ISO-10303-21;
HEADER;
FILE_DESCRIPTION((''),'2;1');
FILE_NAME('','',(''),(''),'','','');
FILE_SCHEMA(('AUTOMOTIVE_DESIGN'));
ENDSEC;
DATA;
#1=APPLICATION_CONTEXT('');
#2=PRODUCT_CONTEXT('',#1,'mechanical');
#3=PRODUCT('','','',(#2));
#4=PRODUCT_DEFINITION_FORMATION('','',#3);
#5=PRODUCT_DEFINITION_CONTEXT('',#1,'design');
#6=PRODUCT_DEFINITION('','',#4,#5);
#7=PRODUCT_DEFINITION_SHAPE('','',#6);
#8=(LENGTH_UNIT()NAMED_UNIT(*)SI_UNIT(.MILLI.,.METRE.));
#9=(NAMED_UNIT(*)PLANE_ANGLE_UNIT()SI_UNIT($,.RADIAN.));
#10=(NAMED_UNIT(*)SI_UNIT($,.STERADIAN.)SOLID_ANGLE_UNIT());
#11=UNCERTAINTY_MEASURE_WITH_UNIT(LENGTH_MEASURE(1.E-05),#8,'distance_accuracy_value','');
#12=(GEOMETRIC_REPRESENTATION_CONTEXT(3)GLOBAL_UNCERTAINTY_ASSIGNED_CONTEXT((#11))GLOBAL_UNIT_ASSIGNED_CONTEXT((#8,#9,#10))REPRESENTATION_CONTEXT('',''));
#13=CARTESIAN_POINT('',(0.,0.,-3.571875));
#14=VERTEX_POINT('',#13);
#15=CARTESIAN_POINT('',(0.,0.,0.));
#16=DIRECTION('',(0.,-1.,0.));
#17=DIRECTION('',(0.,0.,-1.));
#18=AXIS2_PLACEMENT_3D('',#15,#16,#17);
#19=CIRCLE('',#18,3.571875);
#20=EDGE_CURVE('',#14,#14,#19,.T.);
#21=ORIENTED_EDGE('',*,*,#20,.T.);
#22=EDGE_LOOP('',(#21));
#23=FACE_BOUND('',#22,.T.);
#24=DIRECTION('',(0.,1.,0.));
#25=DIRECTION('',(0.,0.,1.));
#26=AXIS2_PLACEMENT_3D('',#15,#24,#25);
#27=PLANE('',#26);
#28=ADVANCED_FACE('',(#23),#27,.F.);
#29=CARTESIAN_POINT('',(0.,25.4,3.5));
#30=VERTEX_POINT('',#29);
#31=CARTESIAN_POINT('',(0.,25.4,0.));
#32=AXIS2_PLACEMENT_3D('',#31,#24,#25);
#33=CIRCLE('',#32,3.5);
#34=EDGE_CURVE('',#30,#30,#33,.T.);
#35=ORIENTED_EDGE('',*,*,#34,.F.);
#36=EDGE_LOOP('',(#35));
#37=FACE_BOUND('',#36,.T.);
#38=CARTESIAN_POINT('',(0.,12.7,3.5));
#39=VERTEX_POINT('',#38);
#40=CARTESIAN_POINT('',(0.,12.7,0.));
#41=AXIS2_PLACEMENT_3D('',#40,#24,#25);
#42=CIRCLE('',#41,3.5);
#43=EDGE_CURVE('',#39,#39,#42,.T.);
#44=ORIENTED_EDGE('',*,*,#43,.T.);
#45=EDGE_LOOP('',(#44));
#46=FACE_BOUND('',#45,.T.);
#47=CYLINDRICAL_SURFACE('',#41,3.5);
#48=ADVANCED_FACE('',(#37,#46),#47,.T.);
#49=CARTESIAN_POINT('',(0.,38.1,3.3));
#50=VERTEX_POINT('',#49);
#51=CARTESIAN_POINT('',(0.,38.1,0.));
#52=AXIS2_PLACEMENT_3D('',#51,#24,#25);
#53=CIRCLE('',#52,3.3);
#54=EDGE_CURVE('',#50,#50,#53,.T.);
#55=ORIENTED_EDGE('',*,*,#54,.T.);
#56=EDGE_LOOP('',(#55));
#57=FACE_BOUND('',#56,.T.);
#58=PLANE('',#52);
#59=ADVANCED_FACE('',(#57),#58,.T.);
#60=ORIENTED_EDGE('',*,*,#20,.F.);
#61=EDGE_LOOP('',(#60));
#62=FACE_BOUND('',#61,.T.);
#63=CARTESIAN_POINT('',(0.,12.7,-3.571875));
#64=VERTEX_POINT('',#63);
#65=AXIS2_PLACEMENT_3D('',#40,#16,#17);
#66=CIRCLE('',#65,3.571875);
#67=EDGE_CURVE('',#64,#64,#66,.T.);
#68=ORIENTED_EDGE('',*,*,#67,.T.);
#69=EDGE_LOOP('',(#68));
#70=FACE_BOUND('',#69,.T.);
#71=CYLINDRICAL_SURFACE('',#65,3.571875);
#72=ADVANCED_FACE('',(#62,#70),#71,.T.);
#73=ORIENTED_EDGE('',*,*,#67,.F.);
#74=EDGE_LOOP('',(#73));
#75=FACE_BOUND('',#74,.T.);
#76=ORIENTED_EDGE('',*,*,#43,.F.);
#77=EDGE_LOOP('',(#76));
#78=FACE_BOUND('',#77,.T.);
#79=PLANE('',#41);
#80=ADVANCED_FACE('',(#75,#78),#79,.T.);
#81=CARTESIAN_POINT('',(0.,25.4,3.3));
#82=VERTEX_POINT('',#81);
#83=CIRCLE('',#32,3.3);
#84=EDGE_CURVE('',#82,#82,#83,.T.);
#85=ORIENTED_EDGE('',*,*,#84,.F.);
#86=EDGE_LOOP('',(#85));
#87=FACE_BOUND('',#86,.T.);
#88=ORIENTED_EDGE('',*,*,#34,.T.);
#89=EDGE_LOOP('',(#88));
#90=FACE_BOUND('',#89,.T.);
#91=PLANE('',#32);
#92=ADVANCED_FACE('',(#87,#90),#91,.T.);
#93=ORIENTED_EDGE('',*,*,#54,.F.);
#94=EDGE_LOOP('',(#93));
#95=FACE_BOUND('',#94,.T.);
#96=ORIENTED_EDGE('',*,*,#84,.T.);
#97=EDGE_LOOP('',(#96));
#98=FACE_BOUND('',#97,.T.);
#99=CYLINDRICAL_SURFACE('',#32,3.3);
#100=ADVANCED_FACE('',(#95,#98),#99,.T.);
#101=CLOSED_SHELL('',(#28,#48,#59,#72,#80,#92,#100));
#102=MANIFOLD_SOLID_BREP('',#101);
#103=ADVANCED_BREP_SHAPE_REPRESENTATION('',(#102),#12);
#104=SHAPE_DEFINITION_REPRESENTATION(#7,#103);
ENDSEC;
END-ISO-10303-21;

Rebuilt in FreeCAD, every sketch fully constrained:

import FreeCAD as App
import Part
import Sketcher
Q = App.Units.Quantity

doc = App.newDocument("Part")
body = doc.addObject("PartDesign::Body", "Body")

# Sketch on XZ plane
sketch1 = body.newObject("Sketcher::SketchObject", "Sketch")
sketch1.AttachmentSupport = (doc.getObject("XZ_Plane"), [""])
sketch1.MapMode = "FlatFace"
sketch1.addGeometry(Part.Circle(App.Vector(0, 0, 0), App.Vector(0, 0, 1), 4.8), False)
sketch1.addConstraint(Sketcher.Constraint("Coincident", 0, 3, -1, 1))
sketch1.addConstraint(Sketcher.Constraint("Diameter", 0, Q("0.375 in")))
pad1 = body.newObject("PartDesign::Pad", "Pad")
pad1.Profile = sketch1
pad1.Length = Q("1.5 in")
pad1.Reversed = True

# Sketch on XZ plane
sketch2 = body.newObject("Sketcher::SketchObject", "Sketch001")
sketch2.AttachmentSupport = (doc.getObject("XZ_Plane"), [""])
sketch2.MapMode = "FlatFace"
sketch2.AttachmentOffset = App.Placement(App.Vector(0, 0, -1.5 * 25.4), App.Rotation())
sketch2.addGeometry(Part.Circle(App.Vector(0, 0, 0), App.Vector(0, 0, 1), 5.8), False)
sketch2.addGeometry(Part.Circle(App.Vector(0, 0, 0), App.Vector(0, 0, 1), 3.3), False)
sketch2.addConstraint(Sketcher.Constraint("Coincident", 0, 3, -1, 1))
sketch2.addConstraint(Sketcher.Constraint("Coincident", 1, 3, -1, 1))
sketch2.addConstraint(Sketcher.Constraint("Diameter", 1, 6.6))
sketch2.addConstraint(Sketcher.Constraint("Diameter", 0, 11.664929))
pocket1 = body.newObject("PartDesign::Pocket", "Pocket")
pocket1.Profile = sketch2
pocket1.Length = Q("0.5 in")
pocket1.Reversed = True

# Sketch on XZ plane
sketch3 = body.newObject("Sketcher::SketchObject", "Sketch002")
sketch3.AttachmentSupport = (doc.getObject("XZ_Plane"), [""])
sketch3.MapMode = "FlatFace"
sketch3.AttachmentOffset = App.Placement(App.Vector(0, 0, -1 * 25.4), App.Rotation())
sketch3.addGeometry(Part.Circle(App.Vector(0, 0, 0), App.Vector(0, 0, 1), 5.3), False)
sketch3.addGeometry(Part.Circle(App.Vector(0, 0, 0), App.Vector(0, 0, 1), 3.5), False)
sketch3.addConstraint(Sketcher.Constraint("Coincident", 0, 3, -1, 1))
sketch3.addConstraint(Sketcher.Constraint("Coincident", 1, 3, -1, 1))
sketch3.addConstraint(Sketcher.Constraint("Diameter", 1, 7.0))
sketch3.addConstraint(Sketcher.Constraint("Diameter", 0, 10.693124))
pocket2 = body.newObject("PartDesign::Pocket", "Pocket001")
pocket2.Profile = sketch3
pocket2.Length = Q("0.5 in")
pocket2.Reversed = True

# Sketch on XZ plane
sketch4 = body.newObject("Sketcher::SketchObject", "Sketch003")
sketch4.AttachmentSupport = (doc.getObject("XZ_Plane"), [""])
sketch4.MapMode = "FlatFace"
sketch4.addGeometry(Part.Circle(App.Vector(0, 0, 0), App.Vector(0, 0, 1), 4.9), False)
sketch4.addGeometry(Part.Circle(App.Vector(0, 0, 0), App.Vector(0, 0, 1), 3.6), False)
sketch4.addConstraint(Sketcher.Constraint("Coincident", 0, 3, -1, 1))
sketch4.addConstraint(Sketcher.Constraint("Coincident", 1, 3, -1, 1))
sketch4.addConstraint(Sketcher.Constraint("Diameter", 1, Q("0.28125 in")))
sketch4.addConstraint(Sketcher.Constraint("Diameter", 0, 9.835284))
pocket3 = body.newObject("PartDesign::Pocket", "Pocket002")
pocket3.Profile = sketch4
pocket3.Length = Q("0.5 in")

doc.recompute()
